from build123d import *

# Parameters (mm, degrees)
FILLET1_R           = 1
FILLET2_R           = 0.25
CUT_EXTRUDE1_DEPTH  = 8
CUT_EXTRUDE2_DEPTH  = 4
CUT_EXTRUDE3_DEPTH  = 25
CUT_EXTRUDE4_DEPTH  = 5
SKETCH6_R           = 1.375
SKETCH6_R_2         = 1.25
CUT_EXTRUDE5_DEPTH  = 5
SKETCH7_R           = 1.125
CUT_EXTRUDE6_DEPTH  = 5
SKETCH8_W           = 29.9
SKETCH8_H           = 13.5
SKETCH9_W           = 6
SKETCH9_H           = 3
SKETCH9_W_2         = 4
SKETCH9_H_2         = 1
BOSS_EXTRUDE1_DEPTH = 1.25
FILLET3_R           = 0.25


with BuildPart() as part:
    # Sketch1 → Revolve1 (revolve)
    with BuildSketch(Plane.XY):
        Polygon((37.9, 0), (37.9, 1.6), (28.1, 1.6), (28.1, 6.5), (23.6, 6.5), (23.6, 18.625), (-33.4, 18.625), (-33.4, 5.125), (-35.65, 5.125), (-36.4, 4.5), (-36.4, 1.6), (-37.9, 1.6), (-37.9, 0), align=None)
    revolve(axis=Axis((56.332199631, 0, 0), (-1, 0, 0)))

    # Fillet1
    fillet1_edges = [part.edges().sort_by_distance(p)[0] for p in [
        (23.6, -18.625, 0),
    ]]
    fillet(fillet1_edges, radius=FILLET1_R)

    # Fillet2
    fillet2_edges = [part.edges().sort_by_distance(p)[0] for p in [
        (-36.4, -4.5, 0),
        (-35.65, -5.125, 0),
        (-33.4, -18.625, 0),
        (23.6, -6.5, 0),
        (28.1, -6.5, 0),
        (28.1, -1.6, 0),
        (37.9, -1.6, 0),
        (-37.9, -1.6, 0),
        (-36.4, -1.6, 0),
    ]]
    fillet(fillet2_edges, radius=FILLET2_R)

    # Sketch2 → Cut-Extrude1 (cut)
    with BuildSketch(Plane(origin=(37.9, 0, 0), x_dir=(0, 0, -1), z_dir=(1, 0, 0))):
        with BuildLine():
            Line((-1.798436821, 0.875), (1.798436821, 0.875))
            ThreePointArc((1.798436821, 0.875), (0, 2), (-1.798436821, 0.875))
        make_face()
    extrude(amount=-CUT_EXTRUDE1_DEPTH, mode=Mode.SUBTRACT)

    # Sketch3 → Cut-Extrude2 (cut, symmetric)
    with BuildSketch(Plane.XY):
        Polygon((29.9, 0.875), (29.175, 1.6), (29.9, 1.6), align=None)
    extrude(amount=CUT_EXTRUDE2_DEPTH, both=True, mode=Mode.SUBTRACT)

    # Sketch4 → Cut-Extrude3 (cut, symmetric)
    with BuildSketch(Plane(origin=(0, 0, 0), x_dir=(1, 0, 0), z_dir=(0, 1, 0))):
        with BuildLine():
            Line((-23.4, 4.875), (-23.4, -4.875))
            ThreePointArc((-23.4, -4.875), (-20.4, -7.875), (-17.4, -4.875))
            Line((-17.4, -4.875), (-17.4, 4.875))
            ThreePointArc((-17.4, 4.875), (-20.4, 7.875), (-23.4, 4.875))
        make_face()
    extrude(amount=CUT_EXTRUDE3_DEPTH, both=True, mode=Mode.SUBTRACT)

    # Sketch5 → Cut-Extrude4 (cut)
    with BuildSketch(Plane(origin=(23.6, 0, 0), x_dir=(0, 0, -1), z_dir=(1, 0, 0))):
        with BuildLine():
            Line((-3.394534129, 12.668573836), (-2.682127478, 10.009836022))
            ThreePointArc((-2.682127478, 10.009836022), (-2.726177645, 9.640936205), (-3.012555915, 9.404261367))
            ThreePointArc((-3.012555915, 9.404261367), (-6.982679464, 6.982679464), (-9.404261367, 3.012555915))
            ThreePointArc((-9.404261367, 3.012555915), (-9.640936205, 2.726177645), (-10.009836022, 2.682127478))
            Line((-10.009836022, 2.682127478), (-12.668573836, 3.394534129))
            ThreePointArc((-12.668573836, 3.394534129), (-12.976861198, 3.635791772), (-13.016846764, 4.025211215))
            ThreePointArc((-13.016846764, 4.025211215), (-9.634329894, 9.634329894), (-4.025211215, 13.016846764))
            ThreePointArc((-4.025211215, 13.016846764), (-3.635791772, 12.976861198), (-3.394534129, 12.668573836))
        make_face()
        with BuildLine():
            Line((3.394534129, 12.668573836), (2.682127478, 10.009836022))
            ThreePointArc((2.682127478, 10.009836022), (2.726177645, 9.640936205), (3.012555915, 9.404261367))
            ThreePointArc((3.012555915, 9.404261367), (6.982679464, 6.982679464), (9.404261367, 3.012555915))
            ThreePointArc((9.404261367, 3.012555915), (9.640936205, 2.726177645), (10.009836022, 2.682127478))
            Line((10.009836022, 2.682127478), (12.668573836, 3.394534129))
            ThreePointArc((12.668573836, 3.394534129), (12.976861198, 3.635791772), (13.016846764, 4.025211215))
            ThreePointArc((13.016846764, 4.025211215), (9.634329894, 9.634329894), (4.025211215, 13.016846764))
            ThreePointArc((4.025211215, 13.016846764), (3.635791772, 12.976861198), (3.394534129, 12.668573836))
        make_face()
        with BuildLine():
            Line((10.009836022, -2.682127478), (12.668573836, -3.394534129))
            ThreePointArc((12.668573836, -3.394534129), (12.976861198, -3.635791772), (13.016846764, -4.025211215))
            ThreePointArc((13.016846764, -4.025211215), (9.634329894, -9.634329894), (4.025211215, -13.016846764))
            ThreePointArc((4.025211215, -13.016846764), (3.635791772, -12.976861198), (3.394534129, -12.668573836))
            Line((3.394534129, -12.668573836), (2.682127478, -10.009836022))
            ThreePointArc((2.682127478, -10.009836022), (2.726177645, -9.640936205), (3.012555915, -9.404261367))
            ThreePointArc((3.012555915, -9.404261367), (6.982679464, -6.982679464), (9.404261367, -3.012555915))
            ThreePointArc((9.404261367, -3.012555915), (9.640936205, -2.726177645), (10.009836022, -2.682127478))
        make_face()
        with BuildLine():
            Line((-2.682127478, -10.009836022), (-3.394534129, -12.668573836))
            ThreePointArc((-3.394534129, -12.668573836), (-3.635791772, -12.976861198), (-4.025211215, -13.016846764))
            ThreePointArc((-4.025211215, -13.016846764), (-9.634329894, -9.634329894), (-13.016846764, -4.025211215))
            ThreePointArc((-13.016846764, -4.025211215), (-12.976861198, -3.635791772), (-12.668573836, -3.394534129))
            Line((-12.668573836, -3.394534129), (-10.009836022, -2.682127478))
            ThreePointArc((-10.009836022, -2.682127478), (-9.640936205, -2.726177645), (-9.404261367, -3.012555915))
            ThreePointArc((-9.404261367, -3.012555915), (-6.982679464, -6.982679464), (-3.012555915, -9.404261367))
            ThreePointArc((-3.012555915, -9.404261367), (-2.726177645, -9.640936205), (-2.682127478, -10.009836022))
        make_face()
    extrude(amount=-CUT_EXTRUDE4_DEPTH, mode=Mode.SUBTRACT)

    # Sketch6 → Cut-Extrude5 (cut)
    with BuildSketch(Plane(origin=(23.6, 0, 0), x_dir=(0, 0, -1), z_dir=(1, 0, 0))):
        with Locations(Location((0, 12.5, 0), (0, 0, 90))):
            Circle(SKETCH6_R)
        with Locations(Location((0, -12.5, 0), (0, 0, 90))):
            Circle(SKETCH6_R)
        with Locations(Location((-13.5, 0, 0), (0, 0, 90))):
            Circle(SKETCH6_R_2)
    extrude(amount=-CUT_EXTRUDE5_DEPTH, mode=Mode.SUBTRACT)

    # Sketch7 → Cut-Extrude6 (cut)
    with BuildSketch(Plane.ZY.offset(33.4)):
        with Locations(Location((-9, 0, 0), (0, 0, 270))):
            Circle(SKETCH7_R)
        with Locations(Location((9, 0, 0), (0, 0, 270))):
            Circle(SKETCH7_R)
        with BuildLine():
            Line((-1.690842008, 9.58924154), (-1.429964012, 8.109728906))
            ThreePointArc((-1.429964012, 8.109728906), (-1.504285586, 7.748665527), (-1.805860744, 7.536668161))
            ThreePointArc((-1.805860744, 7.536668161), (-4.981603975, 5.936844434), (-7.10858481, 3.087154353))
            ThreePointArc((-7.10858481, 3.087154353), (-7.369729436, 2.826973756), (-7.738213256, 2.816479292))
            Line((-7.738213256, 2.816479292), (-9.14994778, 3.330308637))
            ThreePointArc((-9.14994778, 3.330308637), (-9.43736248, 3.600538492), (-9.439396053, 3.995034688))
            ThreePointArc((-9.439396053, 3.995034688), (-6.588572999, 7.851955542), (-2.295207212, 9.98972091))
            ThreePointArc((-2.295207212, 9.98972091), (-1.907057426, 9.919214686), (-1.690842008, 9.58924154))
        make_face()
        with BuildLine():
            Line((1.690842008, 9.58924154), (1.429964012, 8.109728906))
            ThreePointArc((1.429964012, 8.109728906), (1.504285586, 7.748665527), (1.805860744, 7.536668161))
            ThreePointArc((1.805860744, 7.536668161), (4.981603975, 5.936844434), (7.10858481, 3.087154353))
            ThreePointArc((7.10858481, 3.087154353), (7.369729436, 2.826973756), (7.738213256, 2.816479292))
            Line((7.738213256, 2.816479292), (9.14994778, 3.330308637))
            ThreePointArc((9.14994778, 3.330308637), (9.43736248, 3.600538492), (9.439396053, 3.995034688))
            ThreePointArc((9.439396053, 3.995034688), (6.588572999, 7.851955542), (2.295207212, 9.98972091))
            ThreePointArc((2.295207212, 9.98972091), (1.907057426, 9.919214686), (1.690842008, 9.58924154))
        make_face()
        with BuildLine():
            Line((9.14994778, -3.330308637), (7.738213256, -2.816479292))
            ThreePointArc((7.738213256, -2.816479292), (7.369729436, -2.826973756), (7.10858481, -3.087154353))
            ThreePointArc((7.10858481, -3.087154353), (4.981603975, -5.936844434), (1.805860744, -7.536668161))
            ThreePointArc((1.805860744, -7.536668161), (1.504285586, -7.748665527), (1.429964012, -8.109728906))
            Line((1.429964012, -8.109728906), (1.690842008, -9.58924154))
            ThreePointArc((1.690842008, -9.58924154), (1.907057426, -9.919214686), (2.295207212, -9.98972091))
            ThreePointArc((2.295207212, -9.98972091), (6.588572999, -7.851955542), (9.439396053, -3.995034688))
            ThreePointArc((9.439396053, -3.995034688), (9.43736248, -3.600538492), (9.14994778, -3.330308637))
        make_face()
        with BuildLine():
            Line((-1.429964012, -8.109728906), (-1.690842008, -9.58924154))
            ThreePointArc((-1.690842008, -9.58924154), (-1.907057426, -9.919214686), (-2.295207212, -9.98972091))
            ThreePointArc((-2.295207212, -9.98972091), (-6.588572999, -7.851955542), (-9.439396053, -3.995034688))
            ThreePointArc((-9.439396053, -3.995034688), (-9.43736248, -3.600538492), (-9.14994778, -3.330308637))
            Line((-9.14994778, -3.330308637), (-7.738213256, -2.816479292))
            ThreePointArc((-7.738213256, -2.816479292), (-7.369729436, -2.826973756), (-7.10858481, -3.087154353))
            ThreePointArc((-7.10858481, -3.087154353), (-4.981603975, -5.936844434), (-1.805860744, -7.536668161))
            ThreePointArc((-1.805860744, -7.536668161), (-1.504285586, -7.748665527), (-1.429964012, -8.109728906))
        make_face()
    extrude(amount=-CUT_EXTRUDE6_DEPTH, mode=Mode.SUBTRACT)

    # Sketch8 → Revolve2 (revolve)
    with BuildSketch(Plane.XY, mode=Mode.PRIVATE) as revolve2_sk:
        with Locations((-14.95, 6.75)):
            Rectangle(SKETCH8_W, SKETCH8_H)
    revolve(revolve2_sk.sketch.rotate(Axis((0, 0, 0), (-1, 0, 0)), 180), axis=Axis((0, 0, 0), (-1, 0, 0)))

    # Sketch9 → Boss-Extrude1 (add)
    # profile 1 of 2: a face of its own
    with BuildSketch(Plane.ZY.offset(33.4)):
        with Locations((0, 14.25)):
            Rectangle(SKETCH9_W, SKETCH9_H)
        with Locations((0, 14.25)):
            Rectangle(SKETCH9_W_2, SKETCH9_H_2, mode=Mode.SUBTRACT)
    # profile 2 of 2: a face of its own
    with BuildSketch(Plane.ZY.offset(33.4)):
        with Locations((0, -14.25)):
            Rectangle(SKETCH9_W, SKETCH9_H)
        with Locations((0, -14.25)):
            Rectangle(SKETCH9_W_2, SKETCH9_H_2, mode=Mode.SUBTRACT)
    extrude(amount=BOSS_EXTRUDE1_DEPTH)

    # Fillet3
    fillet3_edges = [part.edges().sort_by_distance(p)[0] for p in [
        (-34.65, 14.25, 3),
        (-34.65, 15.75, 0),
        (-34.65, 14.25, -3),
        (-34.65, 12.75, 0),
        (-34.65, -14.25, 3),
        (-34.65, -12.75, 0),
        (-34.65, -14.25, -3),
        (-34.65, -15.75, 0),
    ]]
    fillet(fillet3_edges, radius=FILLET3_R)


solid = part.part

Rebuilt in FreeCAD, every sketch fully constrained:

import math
import FreeCAD as App
import Part
import Sketcher
from FreeCAD import Vector
Q = App.Units.Quantity


def edges_at(feature, points):
    """Names of the edges that pass closest to the given points."""
    edges = feature.Shape.Edges
    near = lambda p: min(range(len(edges)), key=lambda i: edges[i].distToShape(Part.Vertex(*p))[0])
    return sorted({f"Edge{near(p) + 1}" for p in points})


def add_polygon(sketch, points):
    """Adds a closed chain of lines whose ends are joined by coincident constraints."""
    first, n = sketch.GeometryCount, len(points)
    for a, b in zip(points, points[1:] + points[:1]):
        sketch.addGeometry(Part.LineSegment(App.Vector(*a, 0), App.Vector(*b, 0)), False)
    for i in range(n):
        sketch.addConstraint(Sketcher.Constraint("Coincident", first + i, 2, first + (i + 1) % n, 1))

doc = App.newDocument("Part")
body = doc.addObject("PartDesign::Body", "Body")

sketch1 = doc.addObject("Sketcher::SketchObject", "Sketch")
body.addObject(sketch1)
sketch1.AttachmentSupport = (doc.XY_Plane, [""])
sketch1.MapMode = "FlatFace"
add_polygon(sketch1, [(37.9, 0), (37.9, 1.6), (28.1, 1.6), (28.1, 6.5), (23.6, 6.5), (23.6, 18.625), (-33.4, 18.625), (-33.4, 5.125), (-35.65, 5.125), (-36.4, 4.5), (-36.4, 1.6), (-37.9, 1.6), (-37.9, 0)])
sketch1.addConstraint([
    Sketcher.Constraint("Vertical", 0),
    Sketcher.Constraint("Horizontal", 1),
    Sketcher.Constraint("Vertical", 2),
    Sketcher.Constraint("Horizontal", 3),
    Sketcher.Constraint("Vertical", 4),
    Sketcher.Constraint("Horizontal", 5),
    Sketcher.Constraint("Vertical", 6),
    Sketcher.Constraint("Horizontal", 7),
    Sketcher.Constraint("Vertical", 9),
    Sketcher.Constraint("Horizontal", 10),
    Sketcher.Constraint("Vertical", 11),
    Sketcher.Constraint("Horizontal", 12),
    Sketcher.Constraint("Symmetric", 11, 2, 12, 2, -1, 1),
    Sketcher.Constraint("Horizontal", 1, 2, 9, 2),
    Sketcher.Constraint("DistanceX", 5, 2, 5, 1, 57.0),
    Sketcher.Constraint("DistanceX", 1, 2, 1, 1, 9.8),
    Sketcher.Constraint("DistanceX", 3, 2, 3, 1, 4.5),
    Sketcher.Constraint("DistanceX", 10, 2, 10, 1, 1.5),
    Sketcher.Constraint("DistanceX", 12, 1, 12, 2, 75.8),
    Sketcher.Constraint("DistanceY", 0, 1, 0, 2, 1.6),
    Sketcher.Constraint("DistanceY", 2, 1, 2, 2, 4.9),
    Sketcher.Constraint("DistanceY", 6, 2, 6, 1, 13.5),
    Sketcher.Constraint("DistanceY", 9, 2, 9, 1, 2.9),
    Sketcher.Constraint("DistanceX", 7, 2, 7, 1, 2.25),
    Sketcher.Constraint("DistanceY", 4, 1, 4, 2, 12.125),
])
revolution = doc.addObject("PartDesign::Revolution", "Revolution")
body.addObject(revolution)
revolution.Profile = sketch1
revolution.ReferenceAxis = (sketch1, ["H_Axis"])
revolution.Angle = 360
doc.recompute()

fillet = doc.addObject("PartDesign::Fillet", "Fillet")
body.addObject(fillet)
fillet.Base = (revolution, edges_at(revolution, [(23.6, -18.625, 0)]))
fillet.Radius = 1
doc.recompute()

fillet2 = doc.addObject("PartDesign::Fillet", "Fillet001")
body.addObject(fillet2)
fillet2.Base = (fillet, edges_at(fillet, [
    (-36.4, -4.5, 0),
    (-35.65, -5.125, 0),
    (-33.4, -18.625, 0),
    (23.6, -6.5, 0),
    (28.1, -6.5, 0),
    (28.1, -1.6, 0),
    (37.9, -1.6, 0),
    (-37.9, -1.6, 0),
    (-36.4, -1.6, 0),
]))
fillet2.Radius = 0.25

sketch2 = doc.addObject("Sketcher::SketchObject", "Sketch001")
body.addObject(sketch2)
sketch2.AttachmentSupport = (doc.YZ_Plane, [""])
sketch2.MapMode = "FlatFace"
sketch2.AttachmentOffset = App.Placement(Vector(0, 0, 37.9), App.Rotation())
sketch2.addGeometry([
    Part.LineSegment(Vector(0.875, 1.798437, 0), Vector(0.875, -1.798437, 0)),
    Part.ArcOfCircle(Part.Circle(Vector(0, 0, 0), Vector(0, 0, 1), 2), math.radians(-64.05552), math.radians(64.05552)),
], False)
sketch2.addConstraint([
    Sketcher.Constraint("Coincident", 0, 1, 1, 2),
    Sketcher.Constraint("Coincident", 1, 1, 0, 2),
    Sketcher.Constraint("Vertical", 0),
    Sketcher.Constraint("Coincident", 1, 3, -1, 1),
    Sketcher.Constraint("Radius", 1, 2.0),
    Sketcher.Constraint("DistanceX", -1, 1, 0, 1, 0.875),
])
pocket1 = doc.addObject("PartDesign::Pocket", "Pocket")
body.addObject(pocket1)
pocket1.Profile = sketch2
pocket1.Length = 8

sketch3 = doc.addObject("Sketcher::SketchObject", "Sketch002")
body.addObject(sketch3)
sketch3.AttachmentSupport = (doc.XY_Plane, [""])
sketch3.MapMode = "FlatFace"
add_polygon(sketch3, [(29.175, 1.6), (29.9, 0.875), (29.9, 1.6)])
sketch3.addConstraint([
    Sketcher.Constraint("Vertical", 1),
    Sketcher.Constraint("Horizontal", 2),
    Sketcher.Constraint("Equal", 2, 1),
    Sketcher.Constraint("DistanceX", -1, 1, 0, 2, 29.9),
    Sketcher.Constraint("DistanceY", -1, 1, 1, 2, 1.6),
    Sketcher.Constraint("DistanceX", 2, 2, 2, 1, 0.725),
])
pocket2 = doc.addObject("PartDesign::Pocket", "Pocket001")
body.addObject(pocket2)
pocket2.Profile = sketch3
pocket2.Length = 8
pocket2.Midplane = True

sketch4 = doc.addObject("Sketcher::SketchObject", "Sketch003")
body.addObject(sketch4)
sketch4.AttachmentSupport = (doc.XZ_Plane, [""])
sketch4.MapMode = "FlatFace"
sketch4.addGeometry([
    Part.LineSegment(Vector(-23.4, -4.875, 0), Vector(-23.4, 4.875, 0)),
    Part.ArcOfCircle(Part.Circle(Vector(-20.4, 4.875, 0), Vector(0, 0, 1), 3), math.radians(0), math.radians(180)),
    Part.LineSegment(Vector(-17.4, 4.875, 0), Vector(-17.4, -4.875, 0)),
    Part.ArcOfCircle(Part.Circle(Vector(-20.4, -4.875, 0), Vector(0, 0, 1), 3), math.radians(180), math.radians(360)),
], False)
sketch4.addConstraint([
    Sketcher.Constraint("Tangent", 0, 2, 1, 2),
    Sketcher.Constraint("Tangent", 1, 1, 2, 1),
    Sketcher.Constraint("Tangent", 2, 2, 3, 2),
    Sketcher.Constraint("Tangent", 3, 1, 0, 1),
    Sketcher.Constraint("Vertical", 0),
    Sketcher.Constraint("Vertical", 2),
    Sketcher.Constraint("Radius", 1, 3.0),
    Sketcher.Constraint("DistanceY", 0, 1, 0, 2, 9.75),
    Sketcher.Constraint("DistanceX", 1, 3, -1, 1, 20.4),
    Sketcher.Constraint("DistanceY", -1, 1, 1, 3, 4.875),
])
pocket3 = doc.addObject("PartDesign::Pocket", "Pocket002")
body.addObject(pocket3)
pocket3.Profile = sketch4
pocket3.Length = 50
pocket3.Midplane = True

sketch5 = doc.addObject("Sketcher::SketchObject", "Sketch004")
body.addObject(sketch5)
sketch5.AttachmentSupport = (doc.YZ_Plane, [""])
sketch5.MapMode = "FlatFace"
sketch5.AttachmentOffset = App.Placement(Vector(0, 0, 23.6), App.Rotation())
sketch5.addGeometry([
    Part.LineSegment(Vector(10.009836, 2.682127, 0), Vector(12.668574, 3.394534, 0)),
    Part.ArcOfCircle(Part.Circle(Vector(12.539164, 3.877497, 0), Vector(0, 0, 1), 0.5), math.radians(-75), math.radians(17.183225)),
    Part.ArcOfCircle(Part.Circle(Vector(0, 0, 0), Vector(0, 0, 1), 13.625), math.radians(17.183225), math.radians(72.816775)),
    Part.ArcOfCircle(Part.Circle(Vector(3.877497, 12.539164, 0), Vector(0, 0, 1), 0.5), math.radians(72.816775), math.radians(165)),
    Part.LineSegment(Vector(3.394534, 12.668574, 0), Vector(2.682127, 10.009836, 0)),
    Part.ArcOfCircle(Part.Circle(Vector(3.16509, 9.880427, 0), Vector(0, 0, 1), 0.5), math.radians(165), math.radians(252.237688)),
    Part.ArcOfCircle(Part.Circle(Vector(0, 0, 0), Vector(0, 0, 1), 9.875), math.radians(17.762312), math.radians(72.237688)),
    Part.ArcOfCircle(Part.Circle(Vector(9.880427, 3.16509, 0), Vector(0, 0, 1), 0.5), math.radians(-162.237688), math.radians(-75)),
    Part.LineSegment(Vector(12.668574, -3.394534, 0), Vector(10.009836, -2.682127, 0)),
    Part.ArcOfCircle(Part.Circle(Vector(9.880427, -3.16509, 0), Vector(0, 0, 1), 0.5), math.radians(75), math.radians(162.237688)),
    Part.ArcOfCircle(Part.Circle(Vector(0, 0, 0), Vector(0, 0, 1), 9.875), math.radians(-72.237688), math.radians(-17.762312)),
    Part.ArcOfCircle(Part.Circle(Vector(3.16509, -9.880427, 0), Vector(0, 0, 1), 0.5), math.radians(107.762312), math.radians(195)),
    Part.LineSegment(Vector(2.682127, -10.009836, 0), Vector(3.394534, -12.668574, 0)),
    Part.ArcOfCircle(Part.Circle(Vector(3.877497, -12.539164, 0), Vector(0, 0, 1), 0.5), math.radians(-165), math.radians(-72.816775)),
    Part.ArcOfCircle(Part.Circle(Vector(0, 0, 0), Vector(0, 0, 1), 13.625), math.radians(-72.816775), math.radians(-17.183225)),
    Part.ArcOfCircle(Part.Circle(Vector(12.539164, -3.877497, 0), Vector(0, 0, 1), 0.5), math.radians(-17.183225), math.radians(75)),
    Part.LineSegment(Vector(-3.394534, -12.668574, 0), Vector(-2.682127, -10.009836, 0)),
    Part.ArcOfCircle(Part.Circle(Vector(-3.16509, -9.880427, 0), Vector(0, 0, 1), 0.5), math.radians(-15), math.radians(72.237688)),
    Part.ArcOfCircle(Part.Circle(Vector(0, 0, 0), Vector(0, 0, 1), 9.875), math.radians(-162.237688), math.radians(-107.762312)),
    Part.ArcOfCircle(Part.Circle(Vector(-9.880427, -3.16509, 0), Vector(0, 0, 1), 0.5), math.radians(17.762312), math.radians(105)),
    Part.LineSegment(Vector(-10.009836, -2.682127, 0), Vector(-12.668574, -3.394534, 0)),
    Part.ArcOfCircle(Part.Circle(Vector(-12.539164, -3.877497, 0), Vector(0, 0, 1), 0.5), math.radians(105), math.radians(197.183225)),
    Part.ArcOfCircle(Part.Circle(Vector(0, 0, 0), Vector(0, 0, 1), 13.625), math.radians(-162.816775), math.radians(-107.183225)),
    Part.ArcOfCircle(Part.Circle(Vector(-3.877497, -12.539164, 0), Vector(0, 0, 1), 0.5), math.radians(-107.183225), math.radians(-15)),
    Part.LineSegment(Vector(-12.668574, 3.394534, 0), Vector(-10.009836, 2.682127, 0)),
    Part.ArcOfCircle(Part.Circle(Vector(-9.880427, 3.16509, 0), Vector(0, 0, 1), 0.5), math.radians(-105), math.radians(-17.762312)),
    Part.ArcOfCircle(Part.Circle(Vector(0, 0, 0), Vector(0, 0, 1), 9.875), math.radians(107.762312), math.radians(162.237688)),
    Part.ArcOfCircle(Part.Circle(Vector(-3.16509, 9.880427, 0), Vector(0, 0, 1), 0.5), math.radians(-72.237688), math.radians(15)),
    Part.LineSegment(Vector(-2.682127, 10.009836, 0), Vector(-3.394534, 12.668574, 0)),
    Part.ArcOfCircle(Part.Circle(Vector(-3.877497, 12.539164, 0), Vector(0, 0, 1), 0.5), math.radians(15), math.radians(107.183225)),
    Part.ArcOfCircle(Part.Circle(Vector(0, 0, 0), Vector(0, 0, 1), 13.625), math.radians(107.183225), math.radians(162.816775)),
    Part.ArcOfCircle(Part.Circle(Vector(-12.539164, 3.877497, 0), Vector(0, 0, 1), 0.5), math.radians(162.816775), math.radians(255)),
], False)
sketch5.addConstraint([
    Sketcher.Constraint("Tangent", 0, 2, 1, 1),
    Sketcher.Constraint("Tangent", 1, 2, 2, 1),
    Sketcher.Constraint("Tangent", 2, 2, 3, 1),
    Sketcher.Constraint("Tangent", 3, 2, 4, 1),
    Sketcher.Constraint("Tangent", 4, 2, 5, 1),
    Sketcher.Constraint("Tangent", 5, 2, 6, 2),
    Sketcher.Constraint("Tangent", 6, 1, 7, 1),
    Sketcher.Constraint("Tangent", 7, 2, 0, 1),
    Sketcher.Constraint("Tangent", 8, 2, 9, 1),
    Sketcher.Constraint("Tangent", 9, 2, 10, 2),
    Sketcher.Constraint("Tangent", 10, 1, 11, 1),
    Sketcher.Constraint("Tangent", 11, 2, 12, 1),
    Sketcher.Constraint("Tangent", 12, 2, 13, 1),
    Sketcher.Constraint("Tangent", 13, 2, 14, 1),
    Sketcher.Constraint("Tangent", 14, 2, 15, 1),
    Sketcher.Constraint("Tangent", 15, 2, 8, 1),
    Sketcher.Constraint("Tangent", 16, 2, 17, 1),
    Sketcher.Constraint("Tangent", 17, 2, 18, 2),
    Sketcher.Constraint("Tangent", 18, 1, 19, 1),
    Sketcher.Constraint("Tangent", 19, 2, 20, 1),
    Sketcher.Constraint("Tangent", 20, 2, 21, 1),
    Sketcher.Constraint("Tangent", 21, 2, 22, 1),
    Sketcher.Constraint("Tangent", 22, 2, 23, 1),
    Sketcher.Constraint("Tangent", 23, 2, 16, 1),
    Sketcher.Constraint("Tangent", 24, 2, 25, 1),
    Sketcher.Constraint("Tangent", 25, 2, 26, 2),
    Sketcher.Constraint("Tangent", 26, 1, 27, 1),
    Sketcher.Constraint("Tangent", 27, 2, 28, 1),
    Sketcher.Constraint("Tangent", 28, 2, 29, 1),
    Sketcher.Constraint("Tangent", 29, 2, 30, 1),
    Sketcher.Constraint("Tangent", 30, 2, 31, 1),
    Sketcher.Constraint("Tangent", 31, 2, 24, 1),
    Sketcher.Constraint("Coincident", 2, 3, -1, 1),
    Sketcher.Constraint("Coincident", 6, 3, -1, 1),
    Sketcher.Constraint("Coincident", 10, 3, -1, 1),
    Sketcher.Constraint("Coincident", 14, 3, -1, 1),
    Sketcher.Constraint("Coincident", 18, 3, -1, 1),
    Sketcher.Constraint("Coincident", 22, 3, -1, 1),
    Sketcher.Constraint("Coincident", 26, 3, -1, 1),
    Sketcher.Constraint("Coincident", 30, 3, -1, 1),
    Sketcher.Constraint("Equal", 1, 3),
    Sketcher.Constraint("Equal", 3, 5),
    Sketcher.Constraint("Equal", 5, 7),
    Sketcher.Constraint("Equal", 7, 9),
    Sketcher.Constraint("Equal", 6, 10),
    Sketcher.Constraint("Equal", 9, 11),
    Sketcher.Constraint("Equal", 11, 13),
    Sketcher.Constraint("Equal", 2, 14),
    Sketcher.Constraint("Equal", 13, 15),
    Sketcher.Constraint("Equal", 15, 17),
    Sketcher.Constraint("Equal", 10, 18),
    Sketcher.Constraint("Equal", 17, 19),
    Sketcher.Constraint("Equal", 19, 21),
    Sketcher.Constraint("Equal", 14, 22),
    Sketcher.Constraint("Equal", 21, 23),
    Sketcher.Constraint("Equal", 23, 25),
    Sketcher.Constraint("Equal", 18, 26),
    Sketcher.Constraint("Equal", 25, 27),
    Sketcher.Constraint("Equal", 27, 29),
    Sketcher.Constraint("Equal", 22, 30),
    Sketcher.Constraint("Equal", 29, 31),
    Sketcher.Constraint("Symmetric", 4, 2, 16, 2, -1, 1),
    Sketcher.Constraint("Symmetric", 7, 2, 19, 2, -1, 1),
    Sketcher.Constraint("Symmetric", 8, 2, 24, 2, -1, 1),
    Sketcher.Constraint("Symmetric", 11, 2, 27, 2, -1, 1),
    Sketcher.Constraint("Symmetric", 11, 2, 16, 2, -2),
    Sketcher.Constraint("Symmetric", 8, 2, 19, 2, -2),
    Sketcher.Constraint("Perpendicular", 4, 8),
    Sketcher.Constraint("Radius", 1, 0.5),
    Sketcher.Constraint("Angle", 0, Q("15 deg")),
    Sketcher.Constraint("Radius", 2, 13.625),
    Sketcher.Constraint("Radius", 6, 9.875),
    Sketcher.Constraint("DistanceY", 9, 3, 1, 2, 7.190302),
    Sketcher.Constraint("DistanceX", 27, 3, 2, 2, 7.190302),
])
pocket4 = doc.addObject("PartDesign::Pocket", "Pocket003")
body.addObject(pocket4)
pocket4.Profile = sketch5
pocket4.Length = 5

sketch6 = doc.addObject("Sketcher::SketchObject", "Sketch005")
body.addObject(sketch6)
sketch6.AttachmentSupport = (doc.YZ_Plane, [""])
sketch6.MapMode = "FlatFace"
sketch6.AttachmentOffset = App.Placement(Vector(0, 0, 23.6), App.Rotation())
sketch6.addGeometry([
    Part.Circle(Vector(12.5, 0, 0), Vector(0, 0, 1), 1.375),
    Part.Circle(Vector(-12.5, 0, 0), Vector(0, 0, 1), 1.375),
    Part.Circle(Vector(0, 13.5, 0), Vector(0, 0, 1), 1.25),
], False)
sketch6.addConstraint([
    Sketcher.Constraint("Equal", 0, 1),
    Sketcher.Constraint("Symmetric", 0, 3, 1, 3, -1, 1),
    Sketcher.Constraint("PointOnObject", 0, 3, -1),
    Sketcher.Constraint("PointOnObject", 2, 3, -2),
    Sketcher.Constraint("Diameter", 2, 2.5),
    Sketcher.Constraint("Diameter", 0, 2.75),
    Sketcher.Constraint("DistanceX", 1, 3, 0, 3, 25.0),
    Sketcher.Constraint("DistanceY", -1, 1, 2, 3, 13.5),
])
pocket5 = doc.addObject("PartDesign::Pocket", "Pocket004")
body.addObject(pocket5)
pocket5.Profile = sketch6
pocket5.Length = 5

sketch7 = doc.addObject("Sketcher::SketchObject", "Sketch006")
body.addObject(sketch7)
sketch7.AttachmentSupport = (doc.YZ_Plane, [""])
sketch7.MapMode = "FlatFace"
sketch7.AttachmentOffset = App.Placement(Vector(0, 0, -33.4), App.Rotation())
sketch7.addGeometry([
    Part.Circle(Vector(0, -9, 0), Vector(0, 0, 1), 1.125),
    Part.Circle(Vector(0, 9, 0), Vector(0, 0, 1), 1.125),
    Part.LineSegment(Vector(8.109729, -1.429964, 0), Vector(9.589242, -1.690842, 0)),
    Part.ArcOfCircle(Part.Circle(Vector(9.502417, -2.183246, 0), Vector(0, 0, 1), 0.5), math.radians(-12.939534), math.radians(80)),
    Part.ArcOfCircle(Part.Circle(Vector(0, 0, 0), Vector(0, 0, 1), 10.25), math.radians(-67.060466), math.radians(-12.939534)),
    Part.ArcOfCircle(Part.Circle(Vector(3.800155, -8.978938, 0), Vector(0, 0, 1), 0.5), math.radians(-160), math.radians(-67.060466)),
    Part.LineSegment(Vector(3.330309, -9.149948, 0), Vector(2.816479, -7.738213, 0)),
    Part.ArcOfCircle(Part.Circle(Vector(3.286326, -7.567203, 0), Vector(0, 0, 1), 0.5), math.radians(113.474601), math.radians(200)),
    Part.ArcOfCircle(Part.Circle(Vector(0, 0, 0), Vector(0, 0, 1), 7.75), math.radians(-66.525399), math.radians(-13.474601)),
    Part.ArcOfCircle(Part.Circle(Vector(8.022905, -1.922368, 0), Vector(0, 0, 1), 0.5), math.radians(80), math.radians(166.525399)),
    Part.LineSegment(Vector(9.589242, 1.690842, 0), Vector(8.109729, 1.429964, 0)),
    Part.ArcOfCircle(Part.Circle(Vector(8.022905, 1.922368, 0), Vector(0, 0, 1), 0.5), math.radians(-166.525399), math.radians(-80)),
    Part.ArcOfCircle(Part.Circle(Vector(0, 0, 0), Vector(0, 0, 1), 7.75), math.radians(13.474601), math.radians(66.525399)),
    Part.ArcOfCircle(Part.Circle(Vector(3.286326, 7.567203, 0), Vector(0, 0, 1), 0.5), math.radians(160), math.radians(246.525399)),
    Part.LineSegment(Vector(2.816479, 7.738213, 0), Vector(3.330309, 9.149948, 0)),
    Part.ArcOfCircle(Part.Circle(Vector(3.800155, 8.978938, 0), Vector(0, 0, 1), 0.5), math.radians(67.060466), math.radians(160)),
    Part.ArcOfCircle(Part.Circle(Vector(0, 0, 0), Vector(0, 0, 1), 10.25), math.radians(12.939534), math.radians(67.060466)),
    Part.ArcOfCircle(Part.Circle(Vector(9.502417, 2.183246, 0), Vector(0, 0, 1), 0.5), math.radians(-80), math.radians(12.939534)),
    Part.LineSegment(Vector(-3.330309, 9.149948, 0), Vector(-2.816479, 7.738213, 0)),
    Part.ArcOfCircle(Part.Circle(Vector(-3.286326, 7.567203, 0), Vector(0, 0, 1), 0.5), math.radians(-66.525399), math.radians(20)),
    Part.ArcOfCircle(Part.Circle(Vector(0, 0, 0), Vector(0, 0, 1), 7.75), math.radians(113.474601), math.radians(166.525399)),
    Part.ArcOfCircle(Part.Circle(Vector(-8.022905, 1.922368, 0), Vector(0, 0, 1), 0.5), math.radians(-100), math.radians(-13.474601)),
    Part.LineSegment(Vector(-8.109729, 1.429964, 0), Vector(-9.589242, 1.690842, 0)),
    Part.ArcOfCircle(Part.Circle(Vector(-9.502417, 2.183246, 0), Vector(0, 0, 1), 0.5), math.radians(167.060466), math.radians(260)),
    Part.ArcOfCircle(Part.Circle(Vector(0, 0, 0), Vector(0, 0, 1), 10.25), math.radians(112.939534), math.radians(167.060466)),
    Part.ArcOfCircle(Part.Circle(Vector(-3.800155, 8.978938, 0), Vector(0, 0, 1), 0.5), math.radians(20), math.radians(112.939534)),
    Part.LineSegment(Vector(-9.589242, -1.690842, 0), Vector(-8.109729, -1.429964, 0)),
    Part.ArcOfCircle(Part.Circle(Vector(-8.022905, -1.922368, 0), Vector(0, 0, 1), 0.5), math.radians(13.474601), math.radians(100)),
    Part.ArcOfCircle(Part.Circle(Vector(0, 0, 0), Vector(0, 0, 1), 7.75), math.radians(-166.525399), math.radians(-113.474601)),
    Part.ArcOfCircle(Part.Circle(Vector(-3.286326, -7.567203, 0), Vector(0, 0, 1), 0.5), math.radians(-20), math.radians(66.525399)),
    Part.LineSegment(Vector(-2.816479, -7.738213, 0), Vector(-3.330309, -9.149948, 0)),
    Part.ArcOfCircle(Part.Circle(Vector(-3.800155, -8.978938, 0), Vector(0, 0, 1), 0.5), math.radians(-112.939534), math.radians(-20)),
    Part.ArcOfCircle(Part.Circle(Vector(0, 0, 0), Vector(0, 0, 1), 10.25), math.radians(-167.060466), math.radians(-112.939534)),
    Part.ArcOfCircle(Part.Circle(Vector(-9.502417, -2.183246, 0), Vector(0, 0, 1), 0.5), math.radians(100), math.radians(192.939534)),
], False)
sketch7.addConstraint([
    Sketcher.Constraint("Tangent", 2, 2, 3, 2),
    Sketcher.Constraint("Tangent", 3, 1, 4, 2),
    Sketcher.Constraint("Tangent", 4, 1, 5, 2),
    Sketcher.Constraint("Tangent", 5, 1, 6, 1),
    Sketcher.Constraint("Tangent", 6, 2, 7, 2),
    Sketcher.Constraint("Tangent", 7, 1, 8, 1),
    Sketcher.Constraint("Tangent", 8, 2, 9, 2),
    Sketcher.Constraint("Tangent", 9, 1, 2, 1),
    Sketcher.Constraint("Tangent", 10, 2, 11, 2),
    Sketcher.Constraint("Tangent", 11, 1, 12, 1),
    Sketcher.Constraint("Tangent", 12, 2, 13, 2),
    Sketcher.Constraint("Tangent", 13, 1, 14, 1),
    Sketcher.Constraint("Tangent", 14, 2, 15, 2),
    Sketcher.Constraint("Tangent", 15, 1, 16, 2),
    Sketcher.Constraint("Tangent", 16, 1, 17, 2),
    Sketcher.Constraint("Tangent", 17, 1, 10, 1),
    Sketcher.Constraint("Tangent", 18, 2, 19, 2),
    Sketcher.Constraint("Tangent", 19, 1, 20, 1),
    Sketcher.Constraint("Tangent", 20, 2, 21, 2),
    Sketcher.Constraint("Tangent", 21, 1, 22, 1),
    Sketcher.Constraint("Tangent", 22, 2, 23, 2),
    Sketcher.Constraint("Tangent", 23, 1, 24, 2),
    Sketcher.Constraint("Tangent", 24, 1, 25, 2),
    Sketcher.Constraint("Tangent", 25, 1, 18, 1),
    Sketcher.Constraint("Tangent", 26, 2, 27, 2),
    Sketcher.Constraint("Tangent", 27, 1, 28, 1),
    Sketcher.Constraint("Tangent", 28, 2, 29, 2),
    Sketcher.Constraint("Tangent", 29, 1, 30, 1),
    Sketcher.Constraint("Tangent", 30, 2, 31, 2),
    Sketcher.Constraint("Tangent", 31, 1, 32, 2),
    Sketcher.Constraint("Tangent", 32, 1, 33, 2),
    Sketcher.Constraint("Tangent", 33, 1, 26, 1),
    Sketcher.Constraint("Coincident", 4, 3, -1, 1),
    Sketcher.Constraint("Coincident", 8, 3, -1, 1),
    Sketcher.Constraint("Coincident", 12, 3, -1, 1),
    Sketcher.Constraint("Coincident", 16, 3, -1, 1),
    Sketcher.Constraint("Coincident", 20, 3, -1, 1),
    Sketcher.Constraint("Coincident", 24, 3, -1, 1),
    Sketcher.Constraint("Coincident", 28, 3, -1, 1),
    Sketcher.Constraint("Coincident", 32, 3, -1, 1),
    Sketcher.Constraint("Equal", 0, 1),
    Sketcher.Constraint("Equal", 3, 5),
    Sketcher.Constraint("Equal", 5, 7),
    Sketcher.Constraint("Equal", 7, 9),
    Sketcher.Constraint("Equal", 9, 11),
    Sketcher.Constraint("Equal", 8, 12),
    Sketcher.Constraint("Equal", 11, 13),
    Sketcher.Constraint("Equal", 13, 15),
    Sketcher.Constraint("Equal", 4, 16),
    Sketcher.Constraint("Equal", 15, 17),
    Sketcher.Constraint("Equal", 17, 19),
    Sketcher.Constraint("Equal", 12, 20),
    Sketcher.Constraint("Equal", 19, 21),
    Sketcher.Constraint("Equal", 21, 23),
    Sketcher.Constraint("Equal", 16, 24),
    Sketcher.Constraint("Equal", 23, 25),
    Sketcher.Constraint("Equal", 25, 27),
    Sketcher.Constraint("Equal", 20, 28),
    Sketcher.Constraint("Equal", 27, 29),
    Sketcher.Constraint("Equal", 29, 31),
    Sketcher.Constraint("Equal", 24, 32),
    Sketcher.Constraint("Equal", 31, 33),
    Sketcher.Constraint("Symmetric", 0, 3, 1, 3, -1, 1),
    Sketcher.Constraint("Symmetric", 6, 2, 18, 2, -1, 1),
    Sketcher.Constraint("Symmetric", 9, 1, 21, 1, -1, 1),
    Sketcher.Constraint("Symmetric", 10, 2, 26, 2, -1, 1),
    Sketcher.Constraint("Symmetric", 13, 1, 29, 1, -1, 1),
    Sketcher.Constraint("Symmetric", 13, 1, 18, 2, -2),
    Sketcher.Constraint("Symmetric", 10, 2, 21, 1, -2),
    Sketcher.Constraint("PointOnObject", 0, 3, -2),
    Sketcher.Constraint("Equal", 2, 6),
    Sketcher.Constraint("Radius", 3, 0.5),
    Sketcher.Constraint("Diameter", 0, 2.25),
    Sketcher.Constraint("Angle", 2, Q("-10 deg")),
    Sketcher.Constraint("Angle", 6, Q("110 deg")),
    Sketcher.Constraint("Radius", 4, 10.25),
    Sketcher.Constraint("Radius", 8, 7.75),
    Sketcher.Constraint("DistanceY", 0, 3, -1, 1, 9.0),
    Sketcher.Constraint("DistanceX", 7, 1, 5, 3, 0.713001),
])
pocket6 = doc.addObject("PartDesign::Pocket", "Pocket005")
body.addObject(pocket6)
pocket6.Profile = sketch7
pocket6.Length = 5
pocket6.Reversed = True

sketch8 = doc.addObject("Sketcher::SketchObject", "Sketch007")
body.addObject(sketch8)
sketch8.AttachmentSupport = (doc.XY_Plane, [""])
sketch8.MapMode = "FlatFace"
add_polygon(sketch8, [(-29.9, 13.5), (-29.9, 0), (0, 0), (0, 13.5)])
sketch8.addConstraint([
    Sketcher.Constraint("Vertical", 0),
    Sketcher.Constraint("Horizontal", 1),
    Sketcher.Constraint("Vertical", 2),
    Sketcher.Constraint("Horizontal", 3),
    Sketcher.Constraint("Coincident", 1, 2, -1, 1),
    Sketcher.Constraint("DistanceX", 1, 1, 1, 2, 29.9),
    Sketcher.Constraint("DistanceY", 0, 2, 0, 1, 13.5),
])
revolution2 = doc.addObject("PartDesign::Revolution", "Revolution001")
body.addObject(revolution2)
revolution2.Profile = sketch8
revolution2.ReferenceAxis = (sketch8, ["H_Axis"])
revolution2.Angle = 360

sketch9 = doc.addObject("Sketcher::SketchObject", "Sketch008")
body.addObject(sketch9)
sketch9.AttachmentSupport = (doc.YZ_Plane, [""])
sketch9.MapMode = "FlatFace"
sketch9.AttachmentOffset = App.Placement(Vector(0, 0, -33.4), App.Rotation())
add_polygon(sketch9, [(15.75, -3), (12.75, -3), (12.75, 3), (15.75, 3)])
add_polygon(sketch9, [(13.75, 2), (13.75, -2), (14.75, -2), (14.75, 2)])
add_polygon(sketch9, [(-12.75, -3), (-15.75, -3), (-15.75, 3), (-12.75, 3)])
add_polygon(sketch9, [(-14.75, 2), (-14.75, -2), (-13.75, -2), (-13.75, 2)])
sketch9.addConstraint([
    Sketcher.Constraint("Horizontal", 0),
    Sketcher.Constraint("Vertical", 1),
    Sketcher.Constraint("Horizontal", 2),
    Sketcher.Constraint("Vertical", 3),
    Sketcher.Constraint("Vertical", 4),
    Sketcher.Constraint("Horizontal", 5),
    Sketcher.Constraint("Vertical", 6),
    Sketcher.Constraint("Horizontal", 7),
    Sketcher.Constraint("Horizontal", 8),
    Sketcher.Constraint("Vertical", 9),
    Sketcher.Constraint("Horizontal", 10),
    Sketcher.Constraint("Vertical", 11),
    Sketcher.Constraint("Vertical", 12),
    Sketcher.Constraint("Horizontal", 13),
    Sketcher.Constraint("Vertical", 14),
    Sketcher.Constraint("Horizontal", 15),
    Sketcher.Constraint("Symmetric", 2, 2, 8, 2, -1, 1),
    Sketcher.Constraint("Symmetric", 0, 2, 10, 2, -1, 1),
    Sketcher.Constraint("Symmetric", 6, 2, 12, 2, -1, 1),
    Sketcher.Constraint("Symmetric", 4, 2, 14, 2, -1, 1),
    Sketcher.Constraint("Horizontal", 3, 2, 8, 2),
    Sketcher.Constraint("Horizontal", 5, 2, 12, 2),
    Sketcher.Constraint("DistanceX", 0, 2, 0, 1, 3.0),
    Sketcher.Constraint("DistanceX", 5, 1, 5, 2, 1.0),
    Sketcher.Constraint("DistanceY", 1, 1, 1, 2, 6.0),
    Sketcher.Constraint("DistanceY", 4, 2, 4, 1, 4.0),
    Sketcher.Constraint("DistanceX", 0, 2, 4, 2, 1.0),
    Sketcher.Constraint("DistanceX", 8, 2, 0, 2, 28.5),
])
pad1 = doc.addObject("PartDesign::Pad", "Pad")
body.addObject(pad1)
pad1.Profile = sketch9
pad1.Length = 1.25
pad1.Reversed = True
doc.recompute()

fillet3 = doc.addObject("PartDesign::Fillet", "Fillet002")
body.addObject(fillet3)
fillet3.Base = (pad1, edges_at(pad1, [
    (-34.65, 14.25, 3),
    (-34.65, 15.75, 0),
    (-34.65, 14.25, -3),
    (-34.65, 12.75, 0),
    (-34.65, -14.25, 3),
    (-34.65, -12.75, 0),
    (-34.65, -14.25, -3),
    (-34.65, -15.75, 0),
]))
fillet3.Radius = 0.25

doc.recompute()
